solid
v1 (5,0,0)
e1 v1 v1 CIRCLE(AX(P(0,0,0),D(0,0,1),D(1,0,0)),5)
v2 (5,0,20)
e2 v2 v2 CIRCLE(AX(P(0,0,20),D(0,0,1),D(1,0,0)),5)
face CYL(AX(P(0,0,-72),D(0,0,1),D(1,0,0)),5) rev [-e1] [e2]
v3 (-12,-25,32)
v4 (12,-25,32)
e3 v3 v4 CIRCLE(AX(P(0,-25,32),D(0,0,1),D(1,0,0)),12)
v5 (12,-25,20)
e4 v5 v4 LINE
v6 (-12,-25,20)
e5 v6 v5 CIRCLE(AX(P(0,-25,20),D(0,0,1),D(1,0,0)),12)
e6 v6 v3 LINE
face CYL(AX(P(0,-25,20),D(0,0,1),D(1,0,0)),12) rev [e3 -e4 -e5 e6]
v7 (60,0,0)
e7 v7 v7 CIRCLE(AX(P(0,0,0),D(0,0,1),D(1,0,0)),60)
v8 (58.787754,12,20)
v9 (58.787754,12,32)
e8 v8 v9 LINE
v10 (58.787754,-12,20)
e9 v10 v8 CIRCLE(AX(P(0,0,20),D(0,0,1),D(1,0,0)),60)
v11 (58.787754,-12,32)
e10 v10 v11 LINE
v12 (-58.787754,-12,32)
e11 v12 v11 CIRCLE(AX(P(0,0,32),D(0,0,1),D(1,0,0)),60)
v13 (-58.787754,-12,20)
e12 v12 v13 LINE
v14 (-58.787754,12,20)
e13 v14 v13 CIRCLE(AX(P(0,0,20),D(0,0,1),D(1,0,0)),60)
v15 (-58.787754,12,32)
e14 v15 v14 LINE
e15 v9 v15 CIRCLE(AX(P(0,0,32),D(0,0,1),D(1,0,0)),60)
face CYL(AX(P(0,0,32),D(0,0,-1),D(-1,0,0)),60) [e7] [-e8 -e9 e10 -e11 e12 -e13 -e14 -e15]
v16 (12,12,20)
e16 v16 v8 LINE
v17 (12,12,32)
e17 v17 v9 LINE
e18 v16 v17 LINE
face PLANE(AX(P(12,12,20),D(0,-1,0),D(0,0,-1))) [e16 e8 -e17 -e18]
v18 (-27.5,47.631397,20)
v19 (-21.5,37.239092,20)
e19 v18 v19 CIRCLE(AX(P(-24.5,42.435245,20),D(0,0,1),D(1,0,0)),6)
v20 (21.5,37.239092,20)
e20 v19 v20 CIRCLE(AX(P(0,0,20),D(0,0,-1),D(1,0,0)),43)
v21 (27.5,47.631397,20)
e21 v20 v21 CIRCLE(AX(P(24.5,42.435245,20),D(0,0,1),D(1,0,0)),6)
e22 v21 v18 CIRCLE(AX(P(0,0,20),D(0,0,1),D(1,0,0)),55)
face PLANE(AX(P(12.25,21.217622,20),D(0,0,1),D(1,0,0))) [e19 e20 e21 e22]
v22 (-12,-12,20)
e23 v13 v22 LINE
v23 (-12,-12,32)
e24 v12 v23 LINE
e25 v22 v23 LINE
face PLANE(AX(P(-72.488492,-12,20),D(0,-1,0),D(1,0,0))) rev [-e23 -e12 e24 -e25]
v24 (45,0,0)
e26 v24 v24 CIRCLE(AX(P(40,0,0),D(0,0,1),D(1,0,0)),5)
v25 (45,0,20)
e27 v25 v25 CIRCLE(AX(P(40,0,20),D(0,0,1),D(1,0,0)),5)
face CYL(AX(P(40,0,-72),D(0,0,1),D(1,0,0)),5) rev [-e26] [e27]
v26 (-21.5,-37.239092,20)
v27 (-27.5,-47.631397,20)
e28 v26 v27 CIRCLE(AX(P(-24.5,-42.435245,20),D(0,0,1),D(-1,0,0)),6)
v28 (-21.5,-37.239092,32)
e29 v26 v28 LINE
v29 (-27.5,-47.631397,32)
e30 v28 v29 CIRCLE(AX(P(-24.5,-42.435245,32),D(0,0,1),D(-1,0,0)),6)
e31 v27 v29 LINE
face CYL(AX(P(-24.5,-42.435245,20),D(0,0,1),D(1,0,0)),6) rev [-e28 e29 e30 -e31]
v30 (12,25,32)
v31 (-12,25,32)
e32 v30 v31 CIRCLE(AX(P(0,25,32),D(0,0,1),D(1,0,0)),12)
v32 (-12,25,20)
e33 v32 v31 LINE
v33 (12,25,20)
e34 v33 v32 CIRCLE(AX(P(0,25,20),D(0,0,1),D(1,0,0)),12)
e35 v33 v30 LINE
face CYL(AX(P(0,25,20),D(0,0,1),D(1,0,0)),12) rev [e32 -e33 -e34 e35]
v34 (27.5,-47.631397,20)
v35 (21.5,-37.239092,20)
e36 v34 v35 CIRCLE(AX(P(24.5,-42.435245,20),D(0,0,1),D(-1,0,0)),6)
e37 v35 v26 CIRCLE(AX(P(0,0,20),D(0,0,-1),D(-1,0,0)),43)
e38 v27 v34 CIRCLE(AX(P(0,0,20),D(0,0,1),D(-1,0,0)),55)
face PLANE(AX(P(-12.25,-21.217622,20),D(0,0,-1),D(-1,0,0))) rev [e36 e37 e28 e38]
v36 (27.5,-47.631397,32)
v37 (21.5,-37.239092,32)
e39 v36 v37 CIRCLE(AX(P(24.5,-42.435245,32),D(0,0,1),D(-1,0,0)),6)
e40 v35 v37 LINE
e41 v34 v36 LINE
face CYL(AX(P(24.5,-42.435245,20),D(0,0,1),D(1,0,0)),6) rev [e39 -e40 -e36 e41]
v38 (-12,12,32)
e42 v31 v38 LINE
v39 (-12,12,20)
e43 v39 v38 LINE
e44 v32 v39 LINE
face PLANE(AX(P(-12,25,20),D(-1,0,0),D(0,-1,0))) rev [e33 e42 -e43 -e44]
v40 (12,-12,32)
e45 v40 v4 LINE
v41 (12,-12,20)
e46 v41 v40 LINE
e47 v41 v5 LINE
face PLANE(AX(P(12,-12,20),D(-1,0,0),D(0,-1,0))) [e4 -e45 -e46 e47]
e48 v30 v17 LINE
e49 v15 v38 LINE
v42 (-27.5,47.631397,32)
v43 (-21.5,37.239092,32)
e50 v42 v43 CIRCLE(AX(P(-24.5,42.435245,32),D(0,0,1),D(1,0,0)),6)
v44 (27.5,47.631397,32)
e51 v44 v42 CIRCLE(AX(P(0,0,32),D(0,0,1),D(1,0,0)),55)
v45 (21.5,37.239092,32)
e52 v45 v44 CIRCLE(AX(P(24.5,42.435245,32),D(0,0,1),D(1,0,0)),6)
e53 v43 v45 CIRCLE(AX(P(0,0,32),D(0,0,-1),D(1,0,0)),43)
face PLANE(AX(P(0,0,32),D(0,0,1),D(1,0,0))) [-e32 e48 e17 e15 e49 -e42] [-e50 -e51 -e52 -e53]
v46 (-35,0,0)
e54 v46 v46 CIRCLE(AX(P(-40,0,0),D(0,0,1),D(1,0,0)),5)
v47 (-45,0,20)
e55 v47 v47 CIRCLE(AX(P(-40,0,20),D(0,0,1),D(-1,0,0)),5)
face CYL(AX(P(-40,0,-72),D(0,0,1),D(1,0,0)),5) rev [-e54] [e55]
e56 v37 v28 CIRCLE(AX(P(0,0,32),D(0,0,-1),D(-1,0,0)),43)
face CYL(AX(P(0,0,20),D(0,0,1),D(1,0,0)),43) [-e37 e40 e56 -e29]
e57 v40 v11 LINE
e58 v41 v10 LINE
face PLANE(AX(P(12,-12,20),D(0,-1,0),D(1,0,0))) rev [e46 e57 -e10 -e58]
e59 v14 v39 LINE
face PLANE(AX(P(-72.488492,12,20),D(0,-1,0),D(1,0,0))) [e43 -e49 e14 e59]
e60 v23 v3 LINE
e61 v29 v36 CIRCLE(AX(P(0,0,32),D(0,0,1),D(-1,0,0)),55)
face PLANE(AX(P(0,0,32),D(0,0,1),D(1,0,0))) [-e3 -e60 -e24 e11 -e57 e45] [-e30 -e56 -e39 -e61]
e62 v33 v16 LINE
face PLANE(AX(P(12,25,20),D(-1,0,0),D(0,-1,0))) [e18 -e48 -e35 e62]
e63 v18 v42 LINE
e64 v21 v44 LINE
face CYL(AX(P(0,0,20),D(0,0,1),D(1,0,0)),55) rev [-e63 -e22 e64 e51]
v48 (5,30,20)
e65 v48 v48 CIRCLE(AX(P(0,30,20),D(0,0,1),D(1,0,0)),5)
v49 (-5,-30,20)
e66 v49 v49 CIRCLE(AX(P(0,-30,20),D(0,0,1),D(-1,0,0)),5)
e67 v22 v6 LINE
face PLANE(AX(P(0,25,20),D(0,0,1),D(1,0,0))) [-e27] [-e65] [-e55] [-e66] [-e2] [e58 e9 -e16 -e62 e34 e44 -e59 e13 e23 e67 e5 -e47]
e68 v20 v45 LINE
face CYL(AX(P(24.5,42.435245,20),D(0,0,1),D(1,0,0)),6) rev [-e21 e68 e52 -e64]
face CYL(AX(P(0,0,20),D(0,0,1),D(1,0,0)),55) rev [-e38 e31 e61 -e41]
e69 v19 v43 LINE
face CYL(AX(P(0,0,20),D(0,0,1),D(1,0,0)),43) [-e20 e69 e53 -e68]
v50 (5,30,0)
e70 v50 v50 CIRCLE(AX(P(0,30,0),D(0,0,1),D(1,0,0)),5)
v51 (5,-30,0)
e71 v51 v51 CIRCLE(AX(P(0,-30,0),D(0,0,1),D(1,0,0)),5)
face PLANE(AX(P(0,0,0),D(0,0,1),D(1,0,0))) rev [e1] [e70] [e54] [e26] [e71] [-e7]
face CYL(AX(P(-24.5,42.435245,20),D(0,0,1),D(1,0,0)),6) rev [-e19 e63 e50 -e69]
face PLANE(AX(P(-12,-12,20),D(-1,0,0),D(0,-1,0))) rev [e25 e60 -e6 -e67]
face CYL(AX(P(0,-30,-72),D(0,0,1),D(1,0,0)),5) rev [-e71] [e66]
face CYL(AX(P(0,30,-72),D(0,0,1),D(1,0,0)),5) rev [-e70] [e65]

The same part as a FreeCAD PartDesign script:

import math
import FreeCAD as App
import Part
import Sketcher
Q = App.Units.Quantity

doc = App.newDocument("Part")
body = doc.addObject("PartDesign::Body", "Body")

sketch1 = body.newObject("Sketcher::SketchObject", "Sketch")
sketch1.AttachmentSupport = (doc.getObject("XY_Plane"), [""])
sketch1.MapMode = "FlatFace"
sketch1.addGeometry(Part.Circle(App.Vector(0, 0, 0), App.Vector(0, 0, 1), 60), False)
sketch1.addConstraint(Sketcher.Constraint("Coincident", 0, 3, -1, 1))
sketch1.addConstraint(Sketcher.Constraint("Diameter", 0, Q("120 mm")))
pad1 = body.newObject("PartDesign::Pad", "Pad")
pad1.Profile = sketch1
pad1.Length = 32

sketch2 = body.newObject("Sketcher::SketchObject", "Sketch001")
sketch2.AttachmentSupport = (doc.getObject("XY_Plane"), [""])
sketch2.MapMode = "FlatFace"
sketch2.AttachmentOffset = App.Placement(App.Vector(0, 0, 32), App.Rotation())
sketch2.addGeometry(Part.LineSegment(App.Vector(12, -12, 0), App.Vector(72.488492, -12, 0)), False)
sketch2.addGeometry(Part.LineSegment(App.Vector(72.488492, -12, 0), App.Vector(72.488492, 12, 0)), False)
sketch2.addGeometry(Part.LineSegment(App.Vector(72.488492, 12, 0), App.Vector(12, 12, 0)), False)
sketch2.addGeometry(Part.LineSegment(App.Vector(12, 12, 0), App.Vector(12, 25, 0)), False)
sketch2.addGeometry(Part.ArcOfCircle(Part.Circle(App.Vector(0, 25, 0), App.Vector(0, 0, 1), 12), math.radians(0), math.radians(180)), False)
sketch2.addGeometry(Part.LineSegment(App.Vector(-12, 25, 0), App.Vector(-12, 12, 0)), False)
sketch2.addGeometry(Part.LineSegment(App.Vector(-12, 12, 0), App.Vector(-72.488492, 12, 0)), False)
sketch2.addGeometry(Part.LineSegment(App.Vector(-72.488492, 12, 0), App.Vector(-72.488492, -12, 0)), False)
sketch2.addGeometry(Part.LineSegment(App.Vector(-72.488492, -12, 0), App.Vector(-12, -12, 0)), False)
sketch2.addGeometry(Part.LineSegment(App.Vector(-12, -12, 0), App.Vector(-12, -25, 0)), False)
sketch2.addGeometry(Part.ArcOfCircle(Part.Circle(App.Vector(0, -25, 0), App.Vector(0, 0, 1), 12), math.radians(180), math.radians(360)), False)
sketch2.addGeometry(Part.LineSegment(App.Vector(12, -25, 0), App.Vector(12, -12, 0)), False)
sketch2.addConstraint(Sketcher.Constraint("Coincident", 0, 2, 1, 1))
sketch2.addConstraint(Sketcher.Constraint("Coincident", 1, 2, 2, 1))
sketch2.addConstraint(Sketcher.Constraint("Coincident", 2, 2, 3, 1))
sketch2.addConstraint(Sketcher.Constraint("Tangent", 3, 2, 4, 1))
sketch2.addConstraint(Sketcher.Constraint("Tangent", 4, 2, 5, 1))
sketch2.addConstraint(Sketcher.Constraint("Coincident", 5, 2, 6, 1))
sketch2.addConstraint(Sketcher.Constraint("Coincident", 6, 2, 7, 1))
sketch2.addConstraint(Sketcher.Constraint("Coincident", 7, 2, 8, 1))
sketch2.addConstraint(Sketcher.Constraint("Coincident", 8, 2, 9, 1))
sketch2.addConstraint(Sketcher.Constraint("Tangent", 9, 2, 10, 1))
sketch2.addConstraint(Sketcher.Constraint("Tangent", 10, 2, 11, 1))
sketch2.addConstraint(Sketcher.Constraint("Coincident", 11, 2, 0, 1))
sketch2.addConstraint(Sketcher.Constraint("Horizontal", 0))
sketch2.addConstraint(Sketcher.Constraint("Vertical", 1))
sketch2.addConstraint(Sketcher.Constraint("Horizontal", 2))
sketch2.addConstraint(Sketcher.Constraint("Vertical", 3))
sketch2.addConstraint(Sketcher.Constraint("Vertical", 5))
sketch2.addConstraint(Sketcher.Constraint("Horizontal", 6))
sketch2.addConstraint(Sketcher.Constraint("Vertical", 7))
sketch2.addConstraint(Sketcher.Constraint("Horizontal", 8))
sketch2.addConstraint(Sketcher.Constraint("Vertical", 9))
sketch2.addConstraint(Sketcher.Constraint("Vertical", 11))
sketch2.addConstraint(Sketcher.Constraint("Equal", 4, 10))
sketch2.addConstraint(Sketcher.Constraint("Symmetric", 4, 3, 10, 3, -1, 1))
sketch2.addConstraint(Sketcher.Constraint("Symmetric", 0, 2, 6, 2, -1, 1))
sketch2.addConstraint(Sketcher.Constraint("Symmetric", 2, 2, 5, 2, -2))
sketch2.addConstraint(Sketcher.Constraint("Horizontal", 0, 2, 7, 2))
sketch2.addConstraint(Sketcher.Constraint("Radius", 4, Q("12 mm")))
sketch2.addConstraint(Sketcher.Constraint("DistanceY", 1, 1, 1, 2, Q("24 mm")))
sketch2.addConstraint(Sketcher.Constraint("DistanceY", 3, 1, 3, 2, Q("13 mm")))
sketch2.addConstraint(Sketcher.Constraint("DistanceX", 0, 1, 0, 2, Q("60.488492 mm")))
pocket1 = body.newObject("PartDesign::Pocket", "Pocket")
pocket1.Profile = sketch2
pocket1.Length = 12

sketch3 = body.newObject("Sketcher::SketchObject", "Sketch002")
sketch3.AttachmentSupport = (doc.getObject("XY_Plane"), [""])
sketch3.MapMode = "FlatFace"
sketch3.AttachmentOffset = App.Placement(App.Vector(0, 0, 32), App.Rotation())
sketch3.addGeometry(Part.ArcOfCircle(Part.Circle(App.Vector(24.5, -42.435245, 0), App.Vector(0, 0, 1), 6), math.radians(-60), math.radians(120)), False)
sketch3.addGeometry(Part.ArcOfCircle(Part.Circle(App.Vector(0, 0, 0), App.Vector(0, 0, 1), 43), math.radians(-120), math.radians(-60)), False)
sketch3.addGeometry(Part.ArcOfCircle(Part.Circle(App.Vector(-24.5, -42.435245, 0), App.Vector(0, 0, 1), 6), math.radians(60), math.radians(240)), False)
sketch3.addGeometry(Part.ArcOfCircle(Part.Circle(App.Vector(0, 0, 0), App.Vector(0, 0, 1), 55), math.radians(-120), math.radians(-60)), False)
sketch3.addGeometry(Part.ArcOfCircle(Part.Circle(App.Vector(0, 0, 0), App.Vector(0, 0, 1), 55), math.radians(60), math.radians(120)), False)
sketch3.addGeometry(Part.ArcOfCircle(Part.Circle(App.Vector(-24.5, 42.435245, 0), App.Vector(0, 0, 1), 6), math.radians(120), math.radians(300)), False)
sketch3.addGeometry(Part.ArcOfCircle(Part.Circle(App.Vector(0, 0, 0), App.Vector(0, 0, 1), 43), math.radians(60), math.radians(120)), False)
sketch3.addGeometry(Part.ArcOfCircle(Part.Circle(App.Vector(24.5, 42.435245, 0), App.Vector(0, 0, 1), 6), math.radians(-120), math.radians(60)), False)
sketch3.addConstraint(Sketcher.Constraint("Tangent", 0, 2, 1, 2))
sketch3.addConstraint(Sketcher.Constraint("Tangent", 1, 1, 2, 1))
sketch3.addConstraint(Sketcher.Constraint("Tangent", 2, 2, 3, 1))
sketch3.addConstraint(Sketcher.Constraint("Tangent", 3, 2, 0, 1))
sketch3.addConstraint(Sketcher.Constraint("Tangent", 4, 2, 5, 1))
sketch3.addConstraint(Sketcher.Constraint("Tangent", 5, 2, 6, 2))
sketch3.addConstraint(Sketcher.Constraint("Tangent", 6, 1, 7, 1))
sketch3.addConstraint(Sketcher.Constraint("Tangent", 7, 2, 4, 1))
sketch3.addConstraint(Sketcher.Constraint("Coincident", 1, 3, -1, 1))
sketch3.addConstraint(Sketcher.Constraint("Coincident", 3, 3, -1, 1))
sketch3.addConstraint(Sketcher.Constraint("Coincident", 4, 3, -1, 1))
sketch3.addConstraint(Sketcher.Constraint("Coincident", 6, 3, -1, 1))
sketch3.addConstraint(Sketcher.Constraint("Equal", 3, 4))
sketch3.addConstraint(Sketcher.Constraint("Equal", 2, 5))
sketch3.addConstraint(Sketcher.Constraint("Horizontal", 0, 3, 2, 3))
sketch3.addConstraint(Sketcher.Constraint("Horizontal", 5, 3, 7, 3))
sketch3.addConstraint(Sketcher.Constraint("Vertical", 2, 3, 5, 3))
sketch3.addConstraint(Sketcher.Constraint("Radius", 0, Q("6 mm")))
sketch3.addConstraint(Sketcher.Constraint("Radius", 1, Q("43 mm")))
sketch3.addConstraint(Sketcher.Constraint("DistanceX", 2, 3, 0, 3, Q("49 mm")))
pocket2 = body.newObject("PartDesign::Pocket", "Pocket001")
pocket2.Profile = sketch3
pocket2.Length = 12

sketch4 = body.newObject("Sketcher::SketchObject", "Sketch003")
sketch4.AttachmentSupport = (doc.getObject("XY_Plane"), [""])
sketch4.MapMode = "FlatFace"
sketch4.AttachmentOffset = App.Placement(App.Vector(0, 0, 20), App.Rotation())
sketch4.addGeometry(Part.Circle(App.Vector(0, 0, 0), App.Vector(0, 0, 1), 5), False)
sketch4.addGeometry(Part.Circle(App.Vector(40, 0, 0), App.Vector(0, 0, 1), 5), False)
sketch4.addGeometry(Part.Circle(App.Vector(0, 30, 0), App.Vector(0, 0, 1), 5), False)
sketch4.addGeometry(Part.Circle(App.Vector(0, -30, 0), App.Vector(0, 0, 1), 5), False)
sketch4.addGeometry(Part.Circle(App.Vector(-40, 0, 0), App.Vector(0, 0, 1), 5), False)
sketch4.addConstraint(Sketcher.Constraint("Coincident", 0, 3, -1, 1))
sketch4.addConstraint(Sketcher.Constraint("Equal", 0, 1))
sketch4.addConstraint(Sketcher.Constraint("Equal", 1, 2))
sketch4.addConstraint(Sketcher.Constraint("Equal", 2, 3))
sketch4.addConstraint(Sketcher.Constraint("Equal", 3, 4))
sketch4.addConstraint(Sketcher.Constraint("Symmetric", 2, 3, 3, 3, -1, 1))
sketch4.addConstraint(Sketcher.Constraint("Symmetric", 1, 3, 4, 3, -1, 1))
sketch4.addConstraint(Sketcher.Constraint("PointOnObject", 1, 3, -1))
sketch4.addConstraint(Sketcher.Constraint("PointOnObject", 2, 3, -2))
sketch4.addConstraint(Sketcher.Constraint("Diameter", 0, Q("10 mm")))
sketch4.addConstraint(Sketcher.Constraint("DistanceX", -1, 1, 1, 3, Q("40 mm")))
sketch4.addConstraint(Sketcher.Constraint("DistanceY", -1, 1, 2, 3, Q("30 mm")))
pocket3 = body.newObject("PartDesign::Pocket", "Pocket002")
pocket3.Profile = sketch4
pocket3.Length = 92

doc.recompute()
